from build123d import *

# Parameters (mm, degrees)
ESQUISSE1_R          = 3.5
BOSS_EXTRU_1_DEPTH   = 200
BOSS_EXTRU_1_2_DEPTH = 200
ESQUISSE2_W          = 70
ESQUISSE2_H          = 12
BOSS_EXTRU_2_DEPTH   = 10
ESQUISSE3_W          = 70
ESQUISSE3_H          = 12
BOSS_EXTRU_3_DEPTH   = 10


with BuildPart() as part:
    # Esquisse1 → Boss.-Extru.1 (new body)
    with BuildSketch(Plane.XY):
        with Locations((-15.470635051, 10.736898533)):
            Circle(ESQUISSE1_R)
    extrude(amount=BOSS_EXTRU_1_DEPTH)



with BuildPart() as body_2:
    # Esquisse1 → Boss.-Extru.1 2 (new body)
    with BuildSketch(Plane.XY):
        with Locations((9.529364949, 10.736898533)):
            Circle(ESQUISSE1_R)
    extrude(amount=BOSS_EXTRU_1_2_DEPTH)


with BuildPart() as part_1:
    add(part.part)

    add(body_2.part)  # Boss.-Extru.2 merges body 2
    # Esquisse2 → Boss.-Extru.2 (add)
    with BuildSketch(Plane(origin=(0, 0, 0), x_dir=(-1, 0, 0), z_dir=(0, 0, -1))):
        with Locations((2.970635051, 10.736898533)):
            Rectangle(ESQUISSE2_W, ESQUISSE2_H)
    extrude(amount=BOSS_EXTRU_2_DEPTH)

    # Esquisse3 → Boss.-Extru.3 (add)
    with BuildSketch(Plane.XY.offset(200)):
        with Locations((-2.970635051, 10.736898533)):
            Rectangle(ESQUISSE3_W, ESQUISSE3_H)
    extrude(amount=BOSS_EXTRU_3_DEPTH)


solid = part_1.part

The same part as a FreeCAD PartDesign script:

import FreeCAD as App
import Part
import Sketcher


def add_polygon(sketch, points):
    """Adds a closed chain of lines whose ends are joined by coincident constraints."""
    first, n = sketch.GeometryCount, len(points)
    for a, b in zip(points, points[1:] + points[:1]):
        sketch.addGeometry(Part.LineSegment(App.Vector(*a, 0), App.Vector(*b, 0)), False)
    for i in range(n):
        sketch.addConstraint(Sketcher.Constraint("Coincident", first + i, 2, first + (i + 1) % n, 1))

doc = App.newDocument("Part")
body = doc.addObject("PartDesign::Body", "Body")

# Sketch on XY plane
sketch1 = body.newObject("Sketcher::SketchObject", "Sketch")
sketch1.AttachmentSupport = (doc.getObject("XY_Plane"), [""])
sketch1.MapMode = "FlatFace"
sketch1.addGeometry(Part.Circle(App.Vector(-15.470635, 10.736899, 0), App.Vector(0, 0, 1), 3.5), False)
sketch1.addConstraint([
    Sketcher.Constraint("Diameter", 0, 7.0),
    Sketcher.Constraint("DistanceY", -1, 1, 0, 3, 10.736899),
    Sketcher.Constraint("DistanceX", 0, 3, -1, 1, 15.470635),
])
pad1 = body.newObject("PartDesign::Pad", "Pad")
pad1.Profile = sketch1
pad1.Length = 200
body2 = doc.addObject("PartDesign::Body", "Body001")

# Sketch on XY plane
sketch2 = body2.newObject("Sketcher::SketchObject", "Sketch001")
sketch2.AttachmentSupport = (doc.getObject("XY_Plane001"), [""])
sketch2.MapMode = "FlatFace"
sketch2.addGeometry(Part.Circle(App.Vector(9.529365, 10.736899, 0), App.Vector(0, 0, 1), 3.5), False)
sketch2.addConstraint([
    Sketcher.Constraint("Diameter", 0, 7.0),
    Sketcher.Constraint("DistanceY", -1, 1, 0, 3, 10.736899),
    Sketcher.Constraint("DistanceX", -1, 1, 0, 3, 9.529365),
])
pad2 = body2.newObject("PartDesign::Pad", "Pad001")
pad2.Profile = sketch2
pad2.Length = 200
body.AllowCompound = True
doc.recompute()

boolean = body.newObject("PartDesign::Boolean", "Boolean")
boolean.Type = "Fuse"
boolean.addObjects([body2])

# Sketch on XY plane
sketch3 = body.newObject("Sketcher::SketchObject", "Sketch002")
sketch3.AttachmentSupport = (doc.getObject("XY_Plane"), [""])
sketch3.MapMode = "FlatFace"
add_polygon(sketch3, [(32.029365, 16.736899), (32.029365, 4.736899), (-37.970635, 4.736899), (-37.970635, 16.736899)])  # lines 0-3
sketch3.addConstraint([
    Sketcher.Constraint("Vertical", 0),
    Sketcher.Constraint("Horizontal", 1),
    Sketcher.Constraint("Vertical", 2),
    Sketcher.Constraint("Horizontal", 3),
    Sketcher.Constraint("DistanceX", 1, 2, 1, 1, 70.0),
    Sketcher.Constraint("DistanceY", 0, 2, 0, 1, 12.0),
    Sketcher.Constraint("DistanceY", -1, 1, 0, 2, 4.736899),
    Sketcher.Constraint("DistanceX", -1, 1, 0, 2, 32.029365),
])
pad3 = body.newObject("PartDesign::Pad", "Pad002")
pad3.Profile = sketch3
pad3.Length = 10
pad3.Reversed = True

# Sketch on XY plane
sketch4 = body.newObject("Sketcher::SketchObject", "Sketch003")
sketch4.AttachmentSupport = (doc.getObject("XY_Plane"), [""])
sketch4.MapMode = "FlatFace"
sketch4.AttachmentOffset = App.Placement(App.Vector(0, 0, 200), App.Rotation())
add_polygon(sketch4, [(-37.970635, 16.736899), (-37.970635, 4.736899), (32.029365, 4.736899), (32.029365, 16.736899)])  # lines 0-3
sketch4.addConstraint([
    Sketcher.Constraint("Vertical", 0),
    Sketcher.Constraint("Horizontal", 1),
    Sketcher.Constraint("Vertical", 2),
    Sketcher.Constraint("Horizontal", 3),
    Sketcher.Constraint("DistanceX", 1, 1, 1, 2, 70.0),
    Sketcher.Constraint("DistanceY", 0, 2, 0, 1, 12.0),
    Sketcher.Constraint("DistanceY", -1, 1, 0, 2, 4.736899),
    Sketcher.Constraint("DistanceX", 0, 2, -1, 1, 37.970635),
])
pad4 = body.newObject("PartDesign::Pad", "Pad003")
pad4.Profile = sketch4
pad4.Length = 10

doc.recompute()
